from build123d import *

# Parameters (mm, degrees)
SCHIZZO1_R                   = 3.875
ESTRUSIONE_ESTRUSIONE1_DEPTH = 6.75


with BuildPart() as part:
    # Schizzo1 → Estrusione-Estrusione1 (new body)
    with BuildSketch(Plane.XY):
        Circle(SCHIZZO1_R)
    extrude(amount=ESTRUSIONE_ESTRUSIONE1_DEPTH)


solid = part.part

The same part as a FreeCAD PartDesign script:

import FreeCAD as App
import Part
import Sketcher

V = App.Vector
Q = App.Units.Quantity

doc = App.newDocument("Part")
body = doc.addObject("PartDesign::Body", "Body")

sketch1 = body.newObject("Sketcher::SketchObject", "Sketch")
sketch1.AttachmentSupport = (doc.getObject("XY_Plane"), [""])
sketch1.MapMode = "FlatFace"
sketch1.addGeometry(Part.Circle(V(0, 0, 0), V(0, 0, 1), 3.875), False)
sketch1.addConstraint(Sketcher.Constraint("Coincident", 0, 3, -1, 1))
sketch1.addConstraint(Sketcher.Constraint("Diameter", 0, Q("7.75 mm")))
pad1 = body.newObject("PartDesign::Pad", "Pad")
pad1.Profile = sketch1
pad1.Length = 6.75

doc.recompute()
